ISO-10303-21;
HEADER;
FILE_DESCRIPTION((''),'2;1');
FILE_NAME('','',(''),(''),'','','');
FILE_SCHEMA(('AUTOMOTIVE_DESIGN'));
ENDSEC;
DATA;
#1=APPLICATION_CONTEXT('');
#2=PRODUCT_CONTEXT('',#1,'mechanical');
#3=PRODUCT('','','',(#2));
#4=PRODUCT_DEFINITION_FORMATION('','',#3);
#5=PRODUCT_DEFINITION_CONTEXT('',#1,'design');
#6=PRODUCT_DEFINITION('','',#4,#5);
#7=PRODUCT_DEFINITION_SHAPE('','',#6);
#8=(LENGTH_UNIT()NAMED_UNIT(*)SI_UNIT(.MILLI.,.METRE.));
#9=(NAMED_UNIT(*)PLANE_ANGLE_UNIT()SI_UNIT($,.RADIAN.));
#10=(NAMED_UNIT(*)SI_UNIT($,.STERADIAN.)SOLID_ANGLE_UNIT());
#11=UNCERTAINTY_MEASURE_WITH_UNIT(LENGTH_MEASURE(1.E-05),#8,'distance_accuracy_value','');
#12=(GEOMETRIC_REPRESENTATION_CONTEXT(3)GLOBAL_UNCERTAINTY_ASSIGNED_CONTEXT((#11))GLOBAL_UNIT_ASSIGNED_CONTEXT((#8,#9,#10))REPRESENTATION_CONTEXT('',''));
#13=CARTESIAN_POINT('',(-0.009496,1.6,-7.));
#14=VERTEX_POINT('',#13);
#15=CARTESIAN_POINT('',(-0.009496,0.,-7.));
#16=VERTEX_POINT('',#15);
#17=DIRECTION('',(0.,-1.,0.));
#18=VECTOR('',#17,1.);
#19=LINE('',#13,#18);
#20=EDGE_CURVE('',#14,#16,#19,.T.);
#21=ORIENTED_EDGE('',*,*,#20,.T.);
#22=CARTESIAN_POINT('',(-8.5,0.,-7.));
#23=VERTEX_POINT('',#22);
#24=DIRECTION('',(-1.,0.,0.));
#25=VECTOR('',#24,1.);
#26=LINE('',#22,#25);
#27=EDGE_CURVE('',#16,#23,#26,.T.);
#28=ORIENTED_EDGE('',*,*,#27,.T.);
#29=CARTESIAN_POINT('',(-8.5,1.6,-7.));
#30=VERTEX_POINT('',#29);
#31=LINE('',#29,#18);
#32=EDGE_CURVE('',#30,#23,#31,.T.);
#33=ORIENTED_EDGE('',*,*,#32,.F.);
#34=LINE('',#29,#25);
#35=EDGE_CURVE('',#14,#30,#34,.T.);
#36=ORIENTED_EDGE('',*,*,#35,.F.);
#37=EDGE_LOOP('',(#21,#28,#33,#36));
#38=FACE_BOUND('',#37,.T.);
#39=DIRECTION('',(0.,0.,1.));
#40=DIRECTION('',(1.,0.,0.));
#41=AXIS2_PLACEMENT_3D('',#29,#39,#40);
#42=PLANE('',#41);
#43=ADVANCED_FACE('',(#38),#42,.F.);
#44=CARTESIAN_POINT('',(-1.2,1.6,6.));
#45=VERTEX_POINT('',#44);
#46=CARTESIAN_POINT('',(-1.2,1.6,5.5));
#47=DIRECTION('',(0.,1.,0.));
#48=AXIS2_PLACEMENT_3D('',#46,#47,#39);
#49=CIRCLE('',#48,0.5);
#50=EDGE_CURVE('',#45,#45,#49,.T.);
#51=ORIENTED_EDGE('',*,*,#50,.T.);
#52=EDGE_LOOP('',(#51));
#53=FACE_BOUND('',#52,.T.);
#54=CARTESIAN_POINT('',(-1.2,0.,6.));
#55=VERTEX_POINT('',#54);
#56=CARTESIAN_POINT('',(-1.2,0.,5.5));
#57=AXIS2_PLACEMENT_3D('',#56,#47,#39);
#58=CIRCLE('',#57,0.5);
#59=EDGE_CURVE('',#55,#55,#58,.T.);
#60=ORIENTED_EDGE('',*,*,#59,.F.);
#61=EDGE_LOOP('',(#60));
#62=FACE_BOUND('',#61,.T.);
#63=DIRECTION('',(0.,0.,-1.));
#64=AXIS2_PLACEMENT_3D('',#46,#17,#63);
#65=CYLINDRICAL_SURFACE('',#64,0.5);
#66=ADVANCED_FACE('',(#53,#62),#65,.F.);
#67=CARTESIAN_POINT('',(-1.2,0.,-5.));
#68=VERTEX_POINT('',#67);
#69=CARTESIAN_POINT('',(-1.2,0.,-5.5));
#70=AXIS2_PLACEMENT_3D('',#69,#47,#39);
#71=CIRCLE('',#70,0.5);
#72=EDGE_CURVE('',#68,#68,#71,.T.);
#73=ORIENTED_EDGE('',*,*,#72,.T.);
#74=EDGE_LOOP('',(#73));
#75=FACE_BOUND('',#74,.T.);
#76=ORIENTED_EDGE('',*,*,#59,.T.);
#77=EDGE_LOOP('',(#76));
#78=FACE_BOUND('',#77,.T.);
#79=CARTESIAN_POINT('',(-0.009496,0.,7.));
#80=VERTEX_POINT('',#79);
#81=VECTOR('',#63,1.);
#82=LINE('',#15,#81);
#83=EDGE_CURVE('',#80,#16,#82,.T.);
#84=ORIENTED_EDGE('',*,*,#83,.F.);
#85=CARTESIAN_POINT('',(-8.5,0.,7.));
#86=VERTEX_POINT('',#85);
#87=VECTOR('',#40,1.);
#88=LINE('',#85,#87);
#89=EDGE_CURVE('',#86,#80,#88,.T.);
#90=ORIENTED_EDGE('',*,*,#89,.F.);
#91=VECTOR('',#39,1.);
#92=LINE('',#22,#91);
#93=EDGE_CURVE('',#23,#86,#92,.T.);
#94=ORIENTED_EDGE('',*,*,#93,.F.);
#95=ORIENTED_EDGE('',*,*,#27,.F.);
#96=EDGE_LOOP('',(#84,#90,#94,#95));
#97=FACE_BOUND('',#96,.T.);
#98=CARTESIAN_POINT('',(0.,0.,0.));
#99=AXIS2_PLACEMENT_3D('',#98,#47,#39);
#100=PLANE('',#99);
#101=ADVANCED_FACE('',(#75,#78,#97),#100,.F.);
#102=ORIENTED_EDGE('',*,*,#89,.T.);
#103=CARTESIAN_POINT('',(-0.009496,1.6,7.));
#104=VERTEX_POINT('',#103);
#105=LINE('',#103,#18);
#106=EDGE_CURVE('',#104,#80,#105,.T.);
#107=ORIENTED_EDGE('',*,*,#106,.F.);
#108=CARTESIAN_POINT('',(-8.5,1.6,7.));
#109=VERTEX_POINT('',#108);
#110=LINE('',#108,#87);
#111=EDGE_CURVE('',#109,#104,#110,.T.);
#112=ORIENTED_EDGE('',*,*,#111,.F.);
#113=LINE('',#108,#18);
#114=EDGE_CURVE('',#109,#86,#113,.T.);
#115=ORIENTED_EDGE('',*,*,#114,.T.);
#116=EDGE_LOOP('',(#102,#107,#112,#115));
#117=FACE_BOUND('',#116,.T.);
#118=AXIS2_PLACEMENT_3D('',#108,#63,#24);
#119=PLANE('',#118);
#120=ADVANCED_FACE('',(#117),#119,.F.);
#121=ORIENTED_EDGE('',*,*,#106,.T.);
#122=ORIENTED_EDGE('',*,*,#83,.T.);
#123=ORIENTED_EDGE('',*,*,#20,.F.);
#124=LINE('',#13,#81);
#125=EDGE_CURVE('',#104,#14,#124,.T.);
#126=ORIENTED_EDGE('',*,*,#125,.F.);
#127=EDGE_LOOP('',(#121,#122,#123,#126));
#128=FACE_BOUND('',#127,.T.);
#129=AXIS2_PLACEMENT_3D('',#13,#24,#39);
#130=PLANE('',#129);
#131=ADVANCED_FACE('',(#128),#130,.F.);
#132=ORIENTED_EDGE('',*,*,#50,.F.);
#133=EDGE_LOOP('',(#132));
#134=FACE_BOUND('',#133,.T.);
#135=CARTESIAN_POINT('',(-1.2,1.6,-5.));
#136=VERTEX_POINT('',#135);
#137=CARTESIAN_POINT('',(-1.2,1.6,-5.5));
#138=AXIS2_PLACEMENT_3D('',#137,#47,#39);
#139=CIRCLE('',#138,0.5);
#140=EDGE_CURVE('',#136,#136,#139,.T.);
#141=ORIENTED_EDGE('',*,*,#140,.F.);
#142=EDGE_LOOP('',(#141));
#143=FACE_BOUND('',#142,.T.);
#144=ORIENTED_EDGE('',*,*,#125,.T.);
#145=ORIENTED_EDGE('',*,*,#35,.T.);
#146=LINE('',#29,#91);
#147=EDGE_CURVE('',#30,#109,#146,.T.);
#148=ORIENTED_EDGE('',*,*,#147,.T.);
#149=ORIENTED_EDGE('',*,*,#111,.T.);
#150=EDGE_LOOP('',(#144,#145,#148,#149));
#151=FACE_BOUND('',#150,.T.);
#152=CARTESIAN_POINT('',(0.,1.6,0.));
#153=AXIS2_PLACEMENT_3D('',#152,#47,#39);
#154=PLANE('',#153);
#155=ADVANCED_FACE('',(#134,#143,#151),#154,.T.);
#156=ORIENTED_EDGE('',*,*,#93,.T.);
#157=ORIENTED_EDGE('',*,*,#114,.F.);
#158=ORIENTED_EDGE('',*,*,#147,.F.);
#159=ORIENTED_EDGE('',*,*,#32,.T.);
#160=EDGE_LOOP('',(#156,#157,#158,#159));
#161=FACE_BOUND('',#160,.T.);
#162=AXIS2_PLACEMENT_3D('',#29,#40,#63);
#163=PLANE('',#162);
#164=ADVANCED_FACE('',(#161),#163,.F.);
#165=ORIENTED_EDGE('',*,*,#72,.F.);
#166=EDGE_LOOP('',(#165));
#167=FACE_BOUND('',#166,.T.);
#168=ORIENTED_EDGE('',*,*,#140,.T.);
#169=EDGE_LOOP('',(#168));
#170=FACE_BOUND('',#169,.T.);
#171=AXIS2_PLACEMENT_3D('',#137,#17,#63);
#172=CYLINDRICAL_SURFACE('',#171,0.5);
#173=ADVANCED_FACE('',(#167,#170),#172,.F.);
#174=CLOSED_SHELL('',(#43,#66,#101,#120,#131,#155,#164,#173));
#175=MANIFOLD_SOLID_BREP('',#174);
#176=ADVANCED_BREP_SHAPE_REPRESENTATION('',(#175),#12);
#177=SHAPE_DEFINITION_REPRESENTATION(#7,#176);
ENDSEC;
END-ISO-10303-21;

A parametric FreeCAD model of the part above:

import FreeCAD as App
import Part
import Sketcher

V = App.Vector
Q = App.Units.Quantity

doc = App.newDocument("Part")
body = doc.addObject("PartDesign::Body", "Body")

# Sketch on XZ plane
sketch1 = doc.addObject("Sketcher::SketchObject", "Sketch")
body.addObject(sketch1)
sketch1.AttachmentSupport = (doc.XZ_Plane, [""])
sketch1.MapMode = "FlatFace"
sketch1.addGeometry([
    Part.LineSegment(V(-8.5, -7, 0), V(-8.5, 7, 0)),  # 0
    Part.LineSegment(V(-8.5, 7, 0), V(0, 7, 0)),  # 1
    Part.LineSegment(V(0, 7, 0), V(0, -7, 0)),  # 2
    Part.LineSegment(V(0, -7, 0), V(-8.5, -7, 0)),  # 3
    Part.Circle(V(-1.2, 5.5, 0), V(0, 0, 1), 0.5),  # 4
    Part.Circle(V(-1.2, -5.5, 0), V(0, 0, 1), 0.5),  # 5
], False)
sketch1.addConstraint([
    Sketcher.Constraint("Coincident", 0, 2, 1, 1),
    Sketcher.Constraint("Coincident", 1, 2, 2, 1),
    Sketcher.Constraint("Coincident", 2, 2, 3, 1),
    Sketcher.Constraint("Coincident", 3, 2, 0, 1),
    Sketcher.Constraint("Vertical", 0),
    Sketcher.Constraint("Horizontal", 1),
    Sketcher.Constraint("Vertical", 2),
    Sketcher.Constraint("Horizontal", 3),
    Sketcher.Constraint("Equal", 4, 5),
    Sketcher.Constraint("Symmetric", 4, 3, 5, 3, -1),
    Sketcher.Constraint("Diameter", 4, Q("1 mm")),
    Sketcher.Constraint("DistanceY", 0, 1, 0, 2, Q("14 mm")),
    Sketcher.Constraint("DistanceY", -1, 1, 0, 2, Q("7 mm")),
    Sketcher.Constraint("DistanceY", 5, 3, 4, 3, Q("11 mm")),
    Sketcher.Constraint("DistanceX", 4, 3, -1, 1, Q("1.2 mm")),
    Sketcher.Constraint("DistanceX", 0, 2, -1, 1, Q("8.5 mm")),
    Sketcher.Constraint("DistanceX", 1, 1, 1, 2, Q("8.490504 mm")),
])
pad1 = doc.addObject("PartDesign::Pad", "Pad")
body.addObject(pad1)
pad1.Profile = sketch1
pad1.Length = 1.6
pad1.Reversed = True

doc.recompute()
